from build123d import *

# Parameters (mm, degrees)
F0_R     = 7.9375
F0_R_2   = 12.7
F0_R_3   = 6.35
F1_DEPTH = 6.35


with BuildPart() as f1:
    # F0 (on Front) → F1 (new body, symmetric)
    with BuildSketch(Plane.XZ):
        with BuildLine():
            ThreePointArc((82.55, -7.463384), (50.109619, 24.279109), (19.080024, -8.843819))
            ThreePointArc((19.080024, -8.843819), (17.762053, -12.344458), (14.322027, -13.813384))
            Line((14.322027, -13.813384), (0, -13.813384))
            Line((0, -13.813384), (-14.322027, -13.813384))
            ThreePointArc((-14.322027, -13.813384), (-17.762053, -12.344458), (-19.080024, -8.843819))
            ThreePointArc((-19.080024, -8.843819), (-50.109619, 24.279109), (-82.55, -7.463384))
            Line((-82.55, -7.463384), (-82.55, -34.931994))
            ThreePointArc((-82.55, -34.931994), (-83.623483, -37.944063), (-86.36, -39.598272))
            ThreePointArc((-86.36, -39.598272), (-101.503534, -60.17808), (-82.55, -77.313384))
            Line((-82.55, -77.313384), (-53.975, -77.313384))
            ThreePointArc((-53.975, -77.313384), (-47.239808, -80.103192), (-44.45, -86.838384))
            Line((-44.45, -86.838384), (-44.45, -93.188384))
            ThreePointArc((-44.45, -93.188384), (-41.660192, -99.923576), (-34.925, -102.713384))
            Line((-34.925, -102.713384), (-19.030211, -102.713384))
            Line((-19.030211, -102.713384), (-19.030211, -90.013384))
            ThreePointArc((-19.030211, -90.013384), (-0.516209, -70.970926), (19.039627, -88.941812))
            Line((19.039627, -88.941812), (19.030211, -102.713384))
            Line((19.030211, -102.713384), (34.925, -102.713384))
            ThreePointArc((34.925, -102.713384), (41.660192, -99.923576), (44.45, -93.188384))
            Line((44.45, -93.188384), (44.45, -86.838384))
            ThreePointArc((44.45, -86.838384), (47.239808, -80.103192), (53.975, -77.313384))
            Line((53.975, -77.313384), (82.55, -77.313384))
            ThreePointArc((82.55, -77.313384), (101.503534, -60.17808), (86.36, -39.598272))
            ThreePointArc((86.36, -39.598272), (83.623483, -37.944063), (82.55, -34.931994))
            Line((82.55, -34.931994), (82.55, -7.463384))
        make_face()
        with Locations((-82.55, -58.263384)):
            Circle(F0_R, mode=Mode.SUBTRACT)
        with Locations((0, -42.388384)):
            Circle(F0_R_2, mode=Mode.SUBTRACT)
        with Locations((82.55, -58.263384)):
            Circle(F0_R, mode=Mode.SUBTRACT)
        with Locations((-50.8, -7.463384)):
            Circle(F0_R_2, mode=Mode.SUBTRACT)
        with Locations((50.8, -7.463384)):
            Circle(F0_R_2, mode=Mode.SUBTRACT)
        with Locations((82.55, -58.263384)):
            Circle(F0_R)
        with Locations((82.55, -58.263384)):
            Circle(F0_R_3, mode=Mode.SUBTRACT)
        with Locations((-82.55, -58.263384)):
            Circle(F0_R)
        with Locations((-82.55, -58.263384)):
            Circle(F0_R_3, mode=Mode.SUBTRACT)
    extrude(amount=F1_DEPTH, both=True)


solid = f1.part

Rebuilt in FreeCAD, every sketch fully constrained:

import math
import FreeCAD as App
import Part
import Sketcher
from FreeCAD import Vector
Q = App.Units.Quantity

doc = App.newDocument("Part")
params = doc.addObject("Spreadsheet::Sheet", "Params")
for row, (alias, value) in enumerate([
    ("sketch1_diameter", "1 in"),
    ("sketch1_diameter2", "0.5 in"),
    ("sketch1_radius", "1.25 in"),
    ("sketch1_radius2", "0.75 in"),
    ("sketch1_height", "0.5 in"),
    ("pad1_length", "0.5 in"),
], start=1):
    params.set(f"A{row}", alias)
    params.set(f"B{row}", "=" + value)
    params.setAlias(f"B{row}", alias)

body = doc.addObject("PartDesign::Body", "Body")

# Sketch on XZ plane
sketch1 = body.newObject("Sketcher::SketchObject", "Sketch")
sketch1.AttachmentSupport = (doc.getObject("XZ_Plane"), [""])
sketch1.MapMode = "FlatFace"
sketch1.addGeometry([
    Part.ArcOfCircle(Part.Circle(Vector(50.8, -7.463384, 0), Vector(0, 0, 1), 31.75), math.radians(0), math.radians(182.491907)),  # 0
    Part.ArcOfCircle(Part.Circle(Vector(14.322027, -9.050884, 0), Vector(0, 0, 1), 4.7625), math.radians(-90.000002), math.radians(2.4919)),  # 1
    Part.LineSegment(Vector(14.322027, -13.813384, 0), Vector(-14.322027, -13.813384, 0)),  # 2
    Part.ArcOfCircle(Part.Circle(Vector(-14.322027, -9.050884, 0), Vector(0, 0, 1), 4.7625), math.radians(177.5081), math.radians(270.000002)),  # 3
    Part.ArcOfCircle(Part.Circle(Vector(-50.8, -7.463384, 0), Vector(0, 0, 1), 31.75), math.radians(-2.491907), math.radians(180)),  # 4
    Part.LineSegment(Vector(-82.55, -7.463384, 0), Vector(-82.55, -34.931994, 0)),  # 5
    Part.ArcOfCircle(Part.Circle(Vector(-87.3125, -34.931994, 0), Vector(0, 0, 1), 4.7625), math.radians(-78.46304), math.radians(-0.000001)),  # 6
    Part.ArcOfCircle(Part.Circle(Vector(-82.55, -58.263384, 0), Vector(0, 0, 1), 19.05), math.radians(101.536958), math.radians(270.000001)),  # 7
    Part.LineSegment(Vector(-82.55, -77.313384, 0), Vector(-53.975, -77.313384, 0)),  # 8
    Part.ArcOfCircle(Part.Circle(Vector(-53.975, -86.838384, 0), Vector(0, 0, 1), 9.525), math.radians(0.000002), math.radians(89.999998)),  # 9
    Part.LineSegment(Vector(-44.45, -86.838384, 0), Vector(-44.45, -93.188384, 0)),  # 10
    Part.ArcOfCircle(Part.Circle(Vector(-34.925, -93.188384, 0), Vector(0, 0, 1), 9.525), math.radians(-179.999998), math.radians(-90.000002)),  # 11
    Part.LineSegment(Vector(-34.925, -102.713384, 0), Vector(-19.030211, -102.713384, 0)),  # 12
    Part.LineSegment(Vector(-19.030211, -102.713384, 0), Vector(-19.030211, -90.013384, 0)),  # 13
    Part.ArcOfCircle(Part.Circle(Vector(0.019789, -90.013384, 0), Vector(0, 0, 1), 19.05), math.radians(3.224618), math.radians(180)),  # 14
    Part.LineSegment(Vector(19.039627, -88.941812, 0), Vector(19.030211, -102.713384, 0)),  # 15
    Part.LineSegment(Vector(19.030211, -102.713384, 0), Vector(34.925, -102.713384, 0)),  # 16
    Part.ArcOfCircle(Part.Circle(Vector(34.925, -93.188384, 0), Vector(0, 0, 1), 9.525), math.radians(-89.999998), math.radians(-0.000002)),  # 17
    Part.LineSegment(Vector(44.45, -93.188384, 0), Vector(44.45, -86.838384, 0)),  # 18
    Part.ArcOfCircle(Part.Circle(Vector(53.975, -86.838384, 0), Vector(0, 0, 1), 9.525), math.radians(90.000002), math.radians(179.999998)),  # 19
    Part.LineSegment(Vector(53.975, -77.313384, 0), Vector(82.55, -77.313384, 0)),  # 20
    Part.ArcOfCircle(Part.Circle(Vector(82.55, -58.263384, 0), Vector(0, 0, 1), 19.05), math.radians(-90.000001), math.radians(78.463042)),  # 21
    Part.ArcOfCircle(Part.Circle(Vector(87.3125, -34.931994, 0), Vector(0, 0, 1), 4.7625), math.radians(-179.999999), math.radians(-101.53696)),  # 22
    Part.LineSegment(Vector(82.55, -34.931994, 0), Vector(82.55, -7.463384, 0)),  # 23
    Part.Circle(Vector(-82.55, -58.263384, 0), Vector(0, 0, 1), 6.35),  # 24
    Part.Circle(Vector(82.55, -58.263384, 0), Vector(0, 0, 1), 6.35),  # 25
    Part.Circle(Vector(0, -42.388384, 0), Vector(0, 0, 1), 12.7),  # 26
    Part.Circle(Vector(-50.8, -7.463384, 0), Vector(0, 0, 1), 12.7),  # 27
    Part.Circle(Vector(50.8, -7.463384, 0), Vector(0, 0, 1), 12.7),  # 28
], False)
sketch1.addConstraint([
    Sketcher.Constraint("Tangent", 0, 2, 1, 2),
    Sketcher.Constraint("Tangent", 1, 1, 2, 1),
    Sketcher.Constraint("Tangent", 2, 2, 3, 2),
    Sketcher.Constraint("Tangent", 3, 1, 4, 1),
    Sketcher.Constraint("Tangent", 4, 2, 5, 1),
    Sketcher.Constraint("Tangent", 5, 2, 6, 2),
    Sketcher.Constraint("Tangent", 6, 1, 7, 1),
    Sketcher.Constraint("Tangent", 7, 2, 8, 1),
    Sketcher.Constraint("Tangent", 8, 2, 9, 2),
    Sketcher.Constraint("Tangent", 9, 1, 10, 1),
    Sketcher.Constraint("Tangent", 10, 2, 11, 1),
    Sketcher.Constraint("Tangent", 11, 2, 12, 1),
    Sketcher.Constraint("Coincident", 12, 2, 13, 1),
    Sketcher.Constraint("Tangent", 13, 2, 14, 2),
    Sketcher.Constraint("Coincident", 14, 1, 15, 1),
    Sketcher.Constraint("Coincident", 15, 2, 16, 1),
    Sketcher.Constraint("Tangent", 16, 2, 17, 1),
    Sketcher.Constraint("Tangent", 17, 2, 18, 1),
    Sketcher.Constraint("Tangent", 18, 2, 19, 2),
    Sketcher.Constraint("Tangent", 19, 1, 20, 1),
    Sketcher.Constraint("Tangent", 20, 2, 21, 1),
    Sketcher.Constraint("Tangent", 21, 2, 22, 2),
    Sketcher.Constraint("Tangent", 22, 1, 23, 1),
    Sketcher.Constraint("Tangent", 23, 2, 0, 1),
    Sketcher.Constraint("Horizontal", 2),
    Sketcher.Constraint("Vertical", 5),
    Sketcher.Constraint("Horizontal", 8),
    Sketcher.Constraint("Vertical", 10),
    Sketcher.Constraint("Horizontal", 12),
    Sketcher.Constraint("Vertical", 13),
    Sketcher.Constraint("Horizontal", 16),
    Sketcher.Constraint("Vertical", 18),
    Sketcher.Constraint("Horizontal", 20),
    Sketcher.Constraint("Vertical", 23),
    Sketcher.Constraint("Coincident", 24, 3, 7, 3),
    Sketcher.Constraint("Coincident", 25, 3, 21, 3),
    Sketcher.Constraint("Coincident", 27, 3, 4, 3),
    Sketcher.Constraint("Coincident", 28, 3, 0, 3),
    Sketcher.Constraint("Equal", 1, 3),
    Sketcher.Constraint("Equal", 0, 4),
    Sketcher.Constraint("Equal", 3, 6),
    Sketcher.Constraint("Equal", 9, 11),
    Sketcher.Constraint("Equal", 7, 14),
    Sketcher.Constraint("Equal", 11, 17),
    Sketcher.Constraint("Equal", 17, 19),
    Sketcher.Constraint("Equal", 14, 21),
    Sketcher.Constraint("Equal", 6, 22),
    Sketcher.Constraint("Equal", 24, 25),
    Sketcher.Constraint("Equal", 26, 27),
    Sketcher.Constraint("Equal", 27, 28),
    Sketcher.Constraint("Symmetric", 0, 3, 4, 3, -2),
    Sketcher.Constraint("Symmetric", 11, 3, 17, 3, -2),
    Sketcher.Constraint("Symmetric", 7, 3, 21, 3, -2),
    Sketcher.Constraint("PointOnObject", 26, 3, -2),
    Sketcher.Constraint("Vertical", 24, 3, 4, 2),
    Sketcher.Constraint("Equal", 12, 16),
    Sketcher.Constraint("Diameter", 26, Q("1 in")),
    Sketcher.Constraint("Diameter", 24, Q("0.5 in")),
    Sketcher.Constraint("Radius", 0, Q("1.25 in")),
    Sketcher.Constraint("Radius", 7, Q("0.75 in")),
    Sketcher.Constraint("DistanceY", 13, 1, 13, 2, Q("0.5 in")),
    Sketcher.Constraint("DistanceX", -1, 1, 0, 3, Q("2 in")),
    Sketcher.Constraint("Radius", 1, Q("0.1875 in")),
    Sketcher.Constraint("Radius", 9, Q("0.375 in")),
    Sketcher.Constraint("DistanceY", 7, 3, 4, 3, Q("2 in")),
    Sketcher.Constraint("DistanceY", 11, 3, 26, 3, Q("2 in")),
    Sketcher.Constraint("DistanceY", 11, 2, 8, 2, Q("1 in")),
    Sketcher.Constraint("DistanceX", 9, 3, 17, 3, Q("3.5 in")),
    Sketcher.Constraint("DistanceY", 1, 1, 28, 3, Q("0.25 in")),
    Sketcher.Constraint("DistanceX", 12, 1, 12, 2, 15.894789),
    Sketcher.Constraint("DistanceY", 0, 2, -1, 1, 8.843819),
    Sketcher.Constraint("DistanceY", 14, 1, -1, 1, 88.941812),
])
sketch1.setExpression("Constraints[56]", "Params.sketch1_diameter")
sketch1.setExpression("Constraints[57]", "Params.sketch1_diameter2")
sketch1.setExpression("Constraints[58]", "Params.sketch1_radius")
sketch1.setExpression("Constraints[59]", "Params.sketch1_radius2")
sketch1.setExpression("Constraints[60]", "Params.sketch1_height")
pad1 = body.newObject("PartDesign::Pad", "Pad")
pad1.Profile = sketch1
pad1.setExpression("Length", "Params.pad1_length")
pad1.Midplane = True

doc.recompute()
